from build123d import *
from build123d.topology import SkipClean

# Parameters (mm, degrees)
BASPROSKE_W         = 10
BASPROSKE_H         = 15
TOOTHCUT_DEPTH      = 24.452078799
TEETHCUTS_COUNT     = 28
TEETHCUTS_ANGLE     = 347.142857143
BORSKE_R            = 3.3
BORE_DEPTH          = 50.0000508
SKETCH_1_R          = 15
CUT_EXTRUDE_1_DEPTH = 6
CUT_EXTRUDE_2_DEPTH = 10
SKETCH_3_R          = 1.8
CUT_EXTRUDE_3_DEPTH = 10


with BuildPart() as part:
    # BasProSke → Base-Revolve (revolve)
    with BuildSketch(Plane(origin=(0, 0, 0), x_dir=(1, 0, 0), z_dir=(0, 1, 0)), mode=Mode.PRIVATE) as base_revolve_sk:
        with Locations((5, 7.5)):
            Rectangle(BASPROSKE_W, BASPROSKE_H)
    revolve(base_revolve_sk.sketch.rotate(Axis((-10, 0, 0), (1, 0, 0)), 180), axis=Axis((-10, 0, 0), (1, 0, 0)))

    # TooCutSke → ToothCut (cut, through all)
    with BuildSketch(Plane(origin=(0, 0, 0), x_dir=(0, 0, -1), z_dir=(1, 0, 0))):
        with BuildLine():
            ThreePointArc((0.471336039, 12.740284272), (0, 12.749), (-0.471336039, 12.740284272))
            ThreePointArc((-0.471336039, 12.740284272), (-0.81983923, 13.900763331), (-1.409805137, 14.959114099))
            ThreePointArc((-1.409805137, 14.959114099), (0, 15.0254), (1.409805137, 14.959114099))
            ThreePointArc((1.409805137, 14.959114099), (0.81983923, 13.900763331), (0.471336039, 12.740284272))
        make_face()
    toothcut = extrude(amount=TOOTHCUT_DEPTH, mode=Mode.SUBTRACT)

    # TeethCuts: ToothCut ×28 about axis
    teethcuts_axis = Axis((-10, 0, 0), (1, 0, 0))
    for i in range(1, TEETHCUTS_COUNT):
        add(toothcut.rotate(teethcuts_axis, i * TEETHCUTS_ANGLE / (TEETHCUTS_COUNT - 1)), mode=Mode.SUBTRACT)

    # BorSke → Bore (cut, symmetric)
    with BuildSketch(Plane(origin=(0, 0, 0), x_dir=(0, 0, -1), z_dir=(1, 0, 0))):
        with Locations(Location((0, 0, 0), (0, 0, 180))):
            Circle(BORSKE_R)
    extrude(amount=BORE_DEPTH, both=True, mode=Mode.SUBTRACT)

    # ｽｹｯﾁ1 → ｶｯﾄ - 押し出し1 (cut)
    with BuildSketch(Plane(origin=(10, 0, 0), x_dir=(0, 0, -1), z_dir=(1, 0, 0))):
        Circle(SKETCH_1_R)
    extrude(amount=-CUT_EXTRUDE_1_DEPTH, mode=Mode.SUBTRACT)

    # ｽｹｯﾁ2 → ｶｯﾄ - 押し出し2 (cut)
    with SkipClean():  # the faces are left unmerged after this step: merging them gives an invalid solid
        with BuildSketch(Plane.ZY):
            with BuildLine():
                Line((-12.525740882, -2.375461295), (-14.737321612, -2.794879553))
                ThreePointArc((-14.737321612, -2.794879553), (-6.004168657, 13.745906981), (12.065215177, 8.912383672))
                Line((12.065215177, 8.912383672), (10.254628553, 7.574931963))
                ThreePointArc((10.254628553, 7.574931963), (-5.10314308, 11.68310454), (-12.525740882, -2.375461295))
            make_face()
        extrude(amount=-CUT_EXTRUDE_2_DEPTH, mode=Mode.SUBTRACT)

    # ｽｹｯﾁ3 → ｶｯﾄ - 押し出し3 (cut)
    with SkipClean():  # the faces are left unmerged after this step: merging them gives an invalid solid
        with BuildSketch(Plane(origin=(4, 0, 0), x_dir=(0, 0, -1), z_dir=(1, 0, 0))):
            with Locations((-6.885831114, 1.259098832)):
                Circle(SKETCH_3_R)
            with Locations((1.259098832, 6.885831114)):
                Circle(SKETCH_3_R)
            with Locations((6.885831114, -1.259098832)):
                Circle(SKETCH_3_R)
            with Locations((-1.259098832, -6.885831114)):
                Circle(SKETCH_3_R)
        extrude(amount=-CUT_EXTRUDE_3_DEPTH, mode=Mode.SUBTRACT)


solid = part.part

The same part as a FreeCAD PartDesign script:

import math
import FreeCAD as App
import Part
import Sketcher

V = App.Vector
Q = App.Units.Quantity

doc = App.newDocument("Part")
body = doc.addObject("PartDesign::Body", "Body")

# Sketch on XZ plane
sketch1 = doc.addObject("Sketcher::SketchObject", "Sketch")
body.addObject(sketch1)
sketch1.AttachmentSupport = (doc.XZ_Plane, [""])
sketch1.MapMode = "FlatFace"
sketch1.addGeometry([
    Part.LineSegment(V(0, -15, 0), V(0, 0, 0)),
    Part.LineSegment(V(0, 0, 0), V(10, 0, 0)),
    Part.LineSegment(V(10, 0, 0), V(10, -15, 0)),
    Part.LineSegment(V(10, -15, 0), V(0, -15, 0)),
], False)
sketch1.addConstraint([
    Sketcher.Constraint("Coincident", 0, 2, 1, 1),
    Sketcher.Constraint("Coincident", 1, 2, 2, 1),
    Sketcher.Constraint("Coincident", 2, 2, 3, 1),
    Sketcher.Constraint("Coincident", 3, 2, 0, 1),
    Sketcher.Constraint("Vertical", 0),
    Sketcher.Constraint("Horizontal", 1),
    Sketcher.Constraint("Vertical", 2),
    Sketcher.Constraint("Horizontal", 3),
    Sketcher.Constraint("Coincident", 0, 2, -1, 1),
    Sketcher.Constraint("DistanceX", 1, 1, 1, 2, Q("10 mm")),
    Sketcher.Constraint("DistanceY", 0, 1, 0, 2, Q("15 mm")),
])
revolution = doc.addObject("PartDesign::Revolution", "Revolution")
body.addObject(revolution)
revolution.Profile = sketch1
revolution.ReferenceAxis = (sketch1, ["H_Axis"])
revolution.Angle = 360

# Sketch on YZ plane
sketch2 = doc.addObject("Sketcher::SketchObject", "Sketch001")
body.addObject(sketch2)
sketch2.AttachmentSupport = (doc.YZ_Plane, [""])
sketch2.MapMode = "FlatFace"
sketch2.addGeometry([
    Part.ArcOfCircle(Part.Circle(V(0, 0, 0), V(0, 0, 1), 12.749), math.radians(-2.118733), math.radians(2.118733)),
    Part.ArcOfCircle(Part.Circle(V(11.719305, -5.977478, 0), V(0, 0, 1), 5.6), math.radians(54.652268), math.radians(79.49521)),
    Part.ArcOfCircle(Part.Circle(V(0, 0, 0), V(0, 0, 1), 15.0254), math.radians(-5.383875), math.radians(5.383875)),
    Part.ArcOfCircle(Part.Circle(V(11.719305, 5.977478, 0), V(0, 0, 1), 5.6), math.radians(-79.49521), math.radians(-54.652268)),
], False)
sketch2.addConstraint([
    Sketcher.Constraint("Coincident", 0, 1, 1, 2),
    Sketcher.Constraint("Coincident", 1, 1, 2, 1),
    Sketcher.Constraint("Coincident", 2, 2, 3, 2),
    Sketcher.Constraint("Coincident", 3, 1, 0, 2),
    Sketcher.Constraint("Coincident", 0, 3, -1, 1),
    Sketcher.Constraint("Coincident", 2, 3, -1, 1),
    Sketcher.Constraint("Equal", 1, 3),
    Sketcher.Constraint("Symmetric", 1, 3, 3, 3, -1),
    Sketcher.Constraint("Radius", 1, Q("5.6 mm")),
    Sketcher.Constraint("Radius", 0, Q("12.749 mm")),
    Sketcher.Constraint("Radius", 2, Q("15.0254 mm")),
    Sketcher.Constraint("DistanceY", 1, 3, -1, 1, Q("5.977478 mm")),
    Sketcher.Constraint("DistanceX", 1, 3, 0, 1, Q("1.020979 mm")),
])
pocket1 = doc.addObject("PartDesign::Pocket", "Pocket")
body.addObject(pocket1)
pocket1.Profile = sketch2
pocket1.Type = "ThroughAll"
pocket1.Reversed = True
doc.recompute()

polarpattern = doc.addObject("PartDesign::PolarPattern", "PolarPattern")
body.addObject(polarpattern)
polarpattern.Originals = [pocket1]
polarpattern.Axis = (doc.X_Axis, [""])
polarpattern.Angle = 360
polarpattern.Occurrences = 28
body.Tip = polarpattern

# Sketch on YZ plane
sketch3 = doc.addObject("Sketcher::SketchObject", "Sketch002")
body.addObject(sketch3)
sketch3.AttachmentSupport = (doc.YZ_Plane, [""])
sketch3.MapMode = "FlatFace"
sketch3.addGeometry(Part.Circle(V(0, 0, 0), V(0, 0, 1), 3.3), False)
sketch3.addConstraint([
    Sketcher.Constraint("Coincident", 0, 3, -1, 1),
    Sketcher.Constraint("Diameter", 0, Q("6.6 mm")),
])
pocket2 = doc.addObject("PartDesign::Pocket", "Pocket001")
body.addObject(pocket2)
pocket2.Profile = sketch3
pocket2.Length = 100.000102
pocket2.Midplane = True

# Sketch on YZ plane
sketch4 = doc.addObject("Sketcher::SketchObject", "Sketch003")
body.addObject(sketch4)
sketch4.AttachmentSupport = (doc.YZ_Plane, [""])
sketch4.MapMode = "FlatFace"
sketch4.AttachmentOffset = App.Placement(V(0, 0, 10), App.Rotation())
sketch4.addGeometry(Part.Circle(V(0, 0, 0), V(0, 0, 1), 15), False)
sketch4.addConstraint([
    Sketcher.Constraint("Coincident", 0, 3, -1, 1),
    Sketcher.Constraint("Diameter", 0, Q("30 mm")),
])
pocket3 = doc.addObject("PartDesign::Pocket", "Pocket002")
body.addObject(pocket3)
pocket3.Profile = sketch4
pocket3.Length = 6

# Sketch on YZ plane
sketch5 = doc.addObject("Sketcher::SketchObject", "Sketch004")
body.addObject(sketch5)
sketch5.AttachmentSupport = (doc.YZ_Plane, [""])
sketch5.MapMode = "FlatFace"
sketch5.addGeometry([
    Part.LineSegment(V(-2.79488, -14.737322, 0), V(-2.375461, -12.525741, 0)),
    Part.ArcOfCircle(Part.Circle(V(0, 0, 0), V(0, 0, 1), 12.749), math.radians(-100.73841), math.radians(53.547304)),
    Part.LineSegment(V(7.574932, 10.254629, 0), V(8.912384, 12.065215, 0)),
    Part.ArcOfCircle(Part.Circle(V(0, 0, 0), V(0, 0, 1), 15), math.radians(-100.73841), math.radians(53.547304)),
], False)
sketch5.addConstraint([
    Sketcher.Constraint("Coincident", 0, 2, 1, 1),
    Sketcher.Constraint("Coincident", 1, 2, 2, 1),
    Sketcher.Constraint("Coincident", 2, 2, 3, 2),
    Sketcher.Constraint("Coincident", 3, 1, 0, 1),
    Sketcher.Constraint("Coincident", 1, 3, -1, 1),
    Sketcher.Constraint("Coincident", 3, 3, -1, 1),
    Sketcher.Constraint("Radius", 3, Q("15 mm")),
    Sketcher.Constraint("Radius", 1, Q("12.749 mm")),
    Sketcher.Constraint("DistanceX", 0, 2, -1, 1, Q("2.375461 mm")),
    Sketcher.Constraint("DistanceX", -1, 1, 1, 2, Q("7.574932 mm")),
    Sketcher.Constraint("DistanceX", 3, 1, -1, 1, Q("2.79488 mm")),
    Sketcher.Constraint("DistanceX", 1, 2, 2, 2, Q("1.337452 mm")),
])
pocket4 = doc.addObject("PartDesign::Pocket", "Pocket003")
body.addObject(pocket4)
pocket4.Profile = sketch5
pocket4.Length = 10
pocket4.Reversed = True

# Sketch on YZ plane
sketch6 = doc.addObject("Sketcher::SketchObject", "Sketch005")
body.addObject(sketch6)
sketch6.AttachmentSupport = (doc.YZ_Plane, [""])
sketch6.MapMode = "FlatFace"
sketch6.AttachmentOffset = App.Placement(V(0, 0, 4), App.Rotation())
sketch6.addGeometry([
    Part.Circle(V(1.259099, 6.885831, 0), V(0, 0, 1), 1.8),
    Part.Circle(V(6.885831, -1.259099, 0), V(0, 0, 1), 1.8),
    Part.Circle(V(-1.259099, -6.885831, 0), V(0, 0, 1), 1.8),
    Part.Circle(V(-6.885831, 1.259099, 0), V(0, 0, 1), 1.8),
], False)
sketch6.addConstraint([
    Sketcher.Constraint("Equal", 0, 1),
    Sketcher.Constraint("Equal", 1, 2),
    Sketcher.Constraint("Equal", 2, 3),
    Sketcher.Constraint("Symmetric", 0, 3, 2, 3, -1, 1),
    Sketcher.Constraint("Symmetric", 1, 3, 3, 3, -1, 1),
    Sketcher.Constraint("Diameter", 0, Q("3.6 mm")),
    Sketcher.Constraint("DistanceX", -1, 1, 0, 3, Q("1.259099 mm")),
    Sketcher.Constraint("DistanceY", 1, 3, -1, 1, Q("1.259099 mm")),
    Sketcher.Constraint("DistanceY", -1, 1, 0, 3, Q("6.885831 mm")),
    Sketcher.Constraint("DistanceX", -1, 1, 1, 3, Q("6.885831 mm")),
])
pocket5 = doc.addObject("PartDesign::Pocket", "Pocket004")
body.addObject(pocket5)
pocket5.Profile = sketch6
pocket5.Length = 10

doc.recompute()
